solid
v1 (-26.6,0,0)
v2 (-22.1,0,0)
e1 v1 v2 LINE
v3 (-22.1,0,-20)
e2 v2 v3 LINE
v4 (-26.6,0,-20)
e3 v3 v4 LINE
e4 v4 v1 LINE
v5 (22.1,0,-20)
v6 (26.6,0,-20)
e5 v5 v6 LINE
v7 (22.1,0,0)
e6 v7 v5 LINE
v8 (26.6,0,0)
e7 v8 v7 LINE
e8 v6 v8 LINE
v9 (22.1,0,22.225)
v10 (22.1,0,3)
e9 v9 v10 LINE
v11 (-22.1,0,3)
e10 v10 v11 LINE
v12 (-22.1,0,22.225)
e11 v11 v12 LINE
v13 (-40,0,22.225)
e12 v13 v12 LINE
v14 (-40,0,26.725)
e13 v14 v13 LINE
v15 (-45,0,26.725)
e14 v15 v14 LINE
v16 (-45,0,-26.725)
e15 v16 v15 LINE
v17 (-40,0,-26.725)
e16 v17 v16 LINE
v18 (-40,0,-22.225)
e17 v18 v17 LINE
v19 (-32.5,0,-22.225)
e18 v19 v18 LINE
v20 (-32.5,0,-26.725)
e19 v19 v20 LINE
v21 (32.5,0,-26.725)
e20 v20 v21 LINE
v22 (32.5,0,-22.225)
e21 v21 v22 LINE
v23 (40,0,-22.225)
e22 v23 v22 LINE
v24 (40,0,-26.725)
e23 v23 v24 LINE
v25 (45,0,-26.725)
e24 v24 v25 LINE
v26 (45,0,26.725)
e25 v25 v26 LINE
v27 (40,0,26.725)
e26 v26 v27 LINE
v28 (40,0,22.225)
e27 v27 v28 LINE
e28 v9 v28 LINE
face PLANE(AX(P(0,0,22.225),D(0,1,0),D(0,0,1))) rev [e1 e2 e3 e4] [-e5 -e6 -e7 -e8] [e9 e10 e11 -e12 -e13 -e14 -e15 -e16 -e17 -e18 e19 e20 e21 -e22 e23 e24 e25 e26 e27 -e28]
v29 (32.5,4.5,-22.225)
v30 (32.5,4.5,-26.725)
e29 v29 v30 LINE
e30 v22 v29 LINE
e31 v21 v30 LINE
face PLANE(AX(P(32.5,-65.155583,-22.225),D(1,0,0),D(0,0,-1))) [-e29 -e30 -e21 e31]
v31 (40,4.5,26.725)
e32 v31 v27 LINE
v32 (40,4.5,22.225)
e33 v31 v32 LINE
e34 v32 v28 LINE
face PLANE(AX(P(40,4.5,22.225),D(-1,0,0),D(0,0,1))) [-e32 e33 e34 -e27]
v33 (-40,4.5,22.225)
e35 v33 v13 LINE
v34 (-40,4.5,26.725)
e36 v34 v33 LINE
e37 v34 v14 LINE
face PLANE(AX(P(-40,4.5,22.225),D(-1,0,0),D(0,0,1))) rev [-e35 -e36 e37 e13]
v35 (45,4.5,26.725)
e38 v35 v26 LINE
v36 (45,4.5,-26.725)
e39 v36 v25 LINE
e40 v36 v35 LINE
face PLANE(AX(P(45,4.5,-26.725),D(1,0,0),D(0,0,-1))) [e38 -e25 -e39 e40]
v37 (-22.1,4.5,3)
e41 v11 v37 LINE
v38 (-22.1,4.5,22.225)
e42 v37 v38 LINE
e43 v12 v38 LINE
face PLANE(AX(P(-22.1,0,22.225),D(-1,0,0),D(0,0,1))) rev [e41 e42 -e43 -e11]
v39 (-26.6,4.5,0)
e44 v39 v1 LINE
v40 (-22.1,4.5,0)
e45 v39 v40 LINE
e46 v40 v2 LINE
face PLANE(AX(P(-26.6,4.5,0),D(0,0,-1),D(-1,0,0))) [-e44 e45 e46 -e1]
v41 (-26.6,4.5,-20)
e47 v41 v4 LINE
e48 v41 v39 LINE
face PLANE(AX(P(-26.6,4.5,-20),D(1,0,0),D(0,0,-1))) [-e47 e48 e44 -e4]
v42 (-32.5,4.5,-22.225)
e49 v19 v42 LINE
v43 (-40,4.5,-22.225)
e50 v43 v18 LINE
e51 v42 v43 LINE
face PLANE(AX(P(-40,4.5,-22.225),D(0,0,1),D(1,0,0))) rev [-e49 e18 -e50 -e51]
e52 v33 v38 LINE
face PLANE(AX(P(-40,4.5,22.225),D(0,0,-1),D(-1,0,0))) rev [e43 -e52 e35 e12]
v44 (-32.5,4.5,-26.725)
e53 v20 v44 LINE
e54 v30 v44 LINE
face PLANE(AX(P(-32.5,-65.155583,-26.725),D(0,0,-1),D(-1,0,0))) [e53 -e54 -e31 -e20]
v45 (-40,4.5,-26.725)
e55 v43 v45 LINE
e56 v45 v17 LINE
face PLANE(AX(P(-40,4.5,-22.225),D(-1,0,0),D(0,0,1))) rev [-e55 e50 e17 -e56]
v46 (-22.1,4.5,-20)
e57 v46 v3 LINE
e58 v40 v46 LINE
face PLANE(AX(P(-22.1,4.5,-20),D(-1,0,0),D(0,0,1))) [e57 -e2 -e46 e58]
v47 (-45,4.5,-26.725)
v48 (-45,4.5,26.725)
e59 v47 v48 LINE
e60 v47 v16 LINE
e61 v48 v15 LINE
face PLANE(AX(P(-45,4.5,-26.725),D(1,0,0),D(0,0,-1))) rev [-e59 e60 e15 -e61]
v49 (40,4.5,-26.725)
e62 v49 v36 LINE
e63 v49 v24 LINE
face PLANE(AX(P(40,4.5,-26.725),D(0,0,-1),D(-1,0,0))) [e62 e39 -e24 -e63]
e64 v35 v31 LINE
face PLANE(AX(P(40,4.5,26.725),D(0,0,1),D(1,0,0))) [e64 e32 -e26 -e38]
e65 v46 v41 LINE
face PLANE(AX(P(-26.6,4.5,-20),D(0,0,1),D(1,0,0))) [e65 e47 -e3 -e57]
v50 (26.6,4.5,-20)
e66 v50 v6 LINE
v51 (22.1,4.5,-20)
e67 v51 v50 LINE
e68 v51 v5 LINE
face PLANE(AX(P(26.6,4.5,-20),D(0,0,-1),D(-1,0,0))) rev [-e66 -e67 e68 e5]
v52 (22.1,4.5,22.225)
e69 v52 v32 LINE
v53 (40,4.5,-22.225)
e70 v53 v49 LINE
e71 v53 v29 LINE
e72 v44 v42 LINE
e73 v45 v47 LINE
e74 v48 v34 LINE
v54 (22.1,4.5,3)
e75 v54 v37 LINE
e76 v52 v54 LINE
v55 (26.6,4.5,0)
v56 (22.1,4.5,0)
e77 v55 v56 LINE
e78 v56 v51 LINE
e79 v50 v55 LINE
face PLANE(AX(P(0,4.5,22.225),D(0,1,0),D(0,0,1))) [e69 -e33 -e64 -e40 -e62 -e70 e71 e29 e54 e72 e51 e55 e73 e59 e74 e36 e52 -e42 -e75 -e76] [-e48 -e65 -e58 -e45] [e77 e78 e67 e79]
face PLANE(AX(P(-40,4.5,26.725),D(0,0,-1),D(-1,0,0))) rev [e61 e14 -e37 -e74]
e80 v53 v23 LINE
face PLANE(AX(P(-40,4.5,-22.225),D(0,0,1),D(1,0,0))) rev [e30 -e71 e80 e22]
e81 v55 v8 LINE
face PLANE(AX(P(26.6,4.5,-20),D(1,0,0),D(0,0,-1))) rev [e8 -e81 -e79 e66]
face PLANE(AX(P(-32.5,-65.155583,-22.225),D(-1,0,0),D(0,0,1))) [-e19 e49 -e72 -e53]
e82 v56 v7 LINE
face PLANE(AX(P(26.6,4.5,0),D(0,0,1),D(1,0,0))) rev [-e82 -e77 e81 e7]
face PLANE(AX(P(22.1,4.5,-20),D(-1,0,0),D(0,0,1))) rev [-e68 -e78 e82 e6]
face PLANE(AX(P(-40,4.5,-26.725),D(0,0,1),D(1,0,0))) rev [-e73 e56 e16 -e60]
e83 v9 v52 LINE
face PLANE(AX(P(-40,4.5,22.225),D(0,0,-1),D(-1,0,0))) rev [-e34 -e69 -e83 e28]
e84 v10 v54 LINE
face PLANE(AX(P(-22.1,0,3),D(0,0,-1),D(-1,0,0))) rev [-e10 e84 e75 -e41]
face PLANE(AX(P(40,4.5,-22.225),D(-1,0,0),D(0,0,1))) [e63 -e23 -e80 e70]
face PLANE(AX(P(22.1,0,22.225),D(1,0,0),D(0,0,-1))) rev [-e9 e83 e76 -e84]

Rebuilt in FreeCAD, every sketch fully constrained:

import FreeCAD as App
import Part
import Sketcher
from FreeCAD import Vector
Q = App.Units.Quantity


def add_polygon(sketch, points):
    """Adds a closed chain of lines whose ends are joined by coincident constraints."""
    first, n = sketch.GeometryCount, len(points)
    for a, b in zip(points, points[1:] + points[:1]):
        sketch.addGeometry(Part.LineSegment(App.Vector(*a, 0), App.Vector(*b, 0)), False)
    for i in range(n):
        sketch.addConstraint(Sketcher.Constraint("Coincident", first + i, 2, first + (i + 1) % n, 1))

doc = App.newDocument("Part")
body = doc.addObject("PartDesign::Body", "Body")

sketch1 = body.newObject("Sketcher::SketchObject", "Sketch")
sketch1.AttachmentSupport = (doc.getObject("XZ_Plane"), [""])
sketch1.MapMode = "FlatFace"
add_polygon(sketch1, [(-40, 26.725), (-40, 22.225), (0, 22.225), (0, -22.225), (-40, -22.225), (-40, -26.725), (-45, -26.725), (-45, 26.725)])
add_polygon(sketch1, [(-26.6, 0), (-26.6, -20), (-22.1, -20), (-22.1, 0)])
sketch1.addConstraint([
    Sketcher.Constraint("Vertical", 0),
    Sketcher.Constraint("Horizontal", 1),
    Sketcher.Constraint("Vertical", 2),
    Sketcher.Constraint("Horizontal", 3),
    Sketcher.Constraint("Vertical", 4),
    Sketcher.Constraint("Horizontal", 5),
    Sketcher.Constraint("Vertical", 6),
    Sketcher.Constraint("Horizontal", 7),
    Sketcher.Constraint("Vertical", 8),
    Sketcher.Constraint("Horizontal", 9),
    Sketcher.Constraint("Vertical", 10),
    Sketcher.Constraint("Horizontal", 11),
    Sketcher.Constraint("Symmetric", 1, 2, 2, 2, -1, 1),
    Sketcher.Constraint("Symmetric", 4, 2, 7, 2, -1),
    Sketcher.Constraint("PointOnObject", 10, 2, -1),
    Sketcher.Constraint("Equal", 11, 0),
    Sketcher.Constraint("DistanceX", 1, 1, 1, 2, Q("40 mm")),
    Sketcher.Constraint("DistanceX", 5, 2, 5, 1, Q("5 mm")),
    Sketcher.Constraint("DistanceY", 8, 2, 8, 1, Q("20 mm")),
    Sketcher.Constraint("DistanceX", 9, 1, 9, 2, Q("4.5 mm")),
    Sketcher.Constraint("DistanceY", 2, 2, 2, 1, Q("44.45 mm")),
    Sketcher.Constraint("DistanceX", 8, 2, -1, 1, Q("26.6 mm")),
])
pad1 = body.newObject("PartDesign::Pad", "Pad")
pad1.Profile = sketch1
pad1.Length = 4.5
pad1.Reversed = True
doc.recompute()

mirrored = body.newObject("PartDesign::Mirrored", "Mirrored")
mirrored.Originals = [pad1]
mirrored.MirrorPlane = (doc.getObject("YZ_Plane"), [""])
body.Tip = mirrored

sketch2 = body.newObject("Sketcher::SketchObject", "Sketch001")
sketch2.AttachmentSupport = (doc.getObject("XZ_Plane"), [""])
sketch2.MapMode = "FlatFace"
sketch2.AttachmentOffset = App.Placement(Vector(0, 0, -4.5), App.Rotation())
add_polygon(sketch2, [(-22.1, 3), (-22.1, 22.225), (22.1, 22.225), (22.1, 3)])
sketch2.addConstraint([
    Sketcher.Constraint("Vertical", 0),
    Sketcher.Constraint("Horizontal", 1),
    Sketcher.Constraint("Vertical", 2),
    Sketcher.Constraint("Horizontal", 3),
    Sketcher.Constraint("DistanceX", 1, 1, 1, 2, Q("44.2 mm")),
    Sketcher.Constraint("DistanceY", -1, 1, 2, 2, Q("3 mm")),
    Sketcher.Constraint("DistanceX", 0, 2, -1, 1, Q("22.1 mm")),
    Sketcher.Constraint("DistanceY", 0, 1, 0, 2, Q("19.225 mm")),
])
pocket1 = body.newObject("PartDesign::Pocket", "Pocket")
pocket1.Profile = sketch2
pocket1.Type = "ThroughAll"
pocket1.Reversed = True

sketch3 = body.newObject("Sketcher::SketchObject", "Sketch002")
sketch3.AttachmentSupport = (doc.getObject("XZ_Plane"), [""])
sketch3.MapMode = "FlatFace"
sketch3.AttachmentOffset = App.Placement(Vector(0, 0, -4.5), App.Rotation())
add_polygon(sketch3, [(-32.5, -26.725), (-32.5, -22.225), (32.5, -22.225), (32.5, -26.725)])
sketch3.addConstraint([
    Sketcher.Constraint("Vertical", 0),
    Sketcher.Constraint("Horizontal", 1),
    Sketcher.Constraint("Vertical", 2),
    Sketcher.Constraint("Horizontal", 3),
    Sketcher.Constraint("DistanceX", 1, 1, 1, 2, Q("65 mm")),
    Sketcher.Constraint("DistanceY", 0, 1, 0, 2, Q("4.5 mm")),
    Sketcher.Constraint("DistanceX", 0, 2, -1, 1, Q("32.5 mm")),
    Sketcher.Constraint("DistanceY", 0, 2, -1, 1, Q("22.225 mm")),
])
pad2 = body.newObject("PartDesign::Pad", "Pad001")
pad2.Profile = sketch3
pad2.Length = 4.5

doc.recompute()
